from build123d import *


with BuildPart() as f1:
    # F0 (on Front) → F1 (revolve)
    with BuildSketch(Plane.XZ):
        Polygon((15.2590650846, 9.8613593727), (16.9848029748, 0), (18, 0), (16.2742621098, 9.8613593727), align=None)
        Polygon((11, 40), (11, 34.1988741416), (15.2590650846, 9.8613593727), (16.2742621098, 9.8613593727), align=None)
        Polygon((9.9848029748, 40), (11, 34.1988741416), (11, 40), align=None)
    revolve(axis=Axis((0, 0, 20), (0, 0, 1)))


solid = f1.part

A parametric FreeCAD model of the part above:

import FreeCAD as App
import Part
import Sketcher

V = App.Vector
Q = App.Units.Quantity

doc = App.newDocument("Part")
body = doc.addObject("PartDesign::Body", "Body")

# Sketch on XZ plane
sketch1 = body.newObject("Sketcher::SketchObject", "Sketch")
sketch1.AttachmentSupport = (doc.getObject("XZ_Plane"), [""])
sketch1.MapMode = "FlatFace"
sketch1.addGeometry(Part.LineSegment(V(15.3, 9.9, 0), V(17, 0, 0)), False)
sketch1.addGeometry(Part.LineSegment(V(17, 0, 0), V(18, 0, 0)), False)
sketch1.addGeometry(Part.LineSegment(V(18, 0, 0), V(16.3, 9.9, 0)), False)
sketch1.addGeometry(Part.LineSegment(V(16.3, 9.9, 0), V(11, 40, 0)), False)
sketch1.addGeometry(Part.LineSegment(V(11, 40, 0), V(10, 40, 0)), False)
sketch1.addGeometry(Part.LineSegment(V(10, 40, 0), V(11, 34.2, 0)), False)
sketch1.addGeometry(Part.LineSegment(V(11, 34.2, 0), V(15.3, 9.9, 0)), False)
sketch1.addConstraint(Sketcher.Constraint("Coincident", 0, 2, 1, 1))
sketch1.addConstraint(Sketcher.Constraint("Coincident", 1, 2, 2, 1))
sketch1.addConstraint(Sketcher.Constraint("Coincident", 2, 2, 3, 1))
sketch1.addConstraint(Sketcher.Constraint("Coincident", 3, 2, 4, 1))
sketch1.addConstraint(Sketcher.Constraint("Coincident", 4, 2, 5, 1))
sketch1.addConstraint(Sketcher.Constraint("Coincident", 5, 2, 6, 1))
sketch1.addConstraint(Sketcher.Constraint("Coincident", 6, 2, 0, 1))
sketch1.addConstraint(Sketcher.Constraint("Horizontal", 1))
sketch1.addConstraint(Sketcher.Constraint("Horizontal", 4))
sketch1.addConstraint(Sketcher.Constraint("PointOnObject", 0, 2, -1))
sketch1.addConstraint(Sketcher.Constraint("Parallel", 0, 2))
sketch1.addConstraint(Sketcher.Constraint("Parallel", 2, 3))
sketch1.addConstraint(Sketcher.Constraint("Parallel", 3, 5))
sketch1.addConstraint(Sketcher.Constraint("Parallel", 5, 6))
sketch1.addConstraint(Sketcher.Constraint("Horizontal", 2, 2, 6, 2))
sketch1.addConstraint(Sketcher.Constraint("Vertical", 3, 2, 5, 2))
sketch1.addConstraint(Sketcher.Constraint("DistanceX", -1, 1, 1, 2, Q("18 mm")))
sketch1.addConstraint(Sketcher.Constraint("DistanceX", -1, 1, 3, 2, Q("11 mm")))
sketch1.addConstraint(Sketcher.Constraint("DistanceY", -1, 1, 3, 2, Q("40 mm")))
sketch1.addConstraint(Sketcher.Constraint("Distance", 3, Q("30.596658 mm")))
sketch1.addConstraint(Sketcher.Constraint("DistanceX", 1, 1, 1, 2, Q("1.015197 mm")))
revolution = body.newObject("PartDesign::Revolution", "Revolution")
revolution.Profile = sketch1
revolution.ReferenceAxis = (sketch1, ["V_Axis"])
revolution.Angle = 360

doc.recompute()
